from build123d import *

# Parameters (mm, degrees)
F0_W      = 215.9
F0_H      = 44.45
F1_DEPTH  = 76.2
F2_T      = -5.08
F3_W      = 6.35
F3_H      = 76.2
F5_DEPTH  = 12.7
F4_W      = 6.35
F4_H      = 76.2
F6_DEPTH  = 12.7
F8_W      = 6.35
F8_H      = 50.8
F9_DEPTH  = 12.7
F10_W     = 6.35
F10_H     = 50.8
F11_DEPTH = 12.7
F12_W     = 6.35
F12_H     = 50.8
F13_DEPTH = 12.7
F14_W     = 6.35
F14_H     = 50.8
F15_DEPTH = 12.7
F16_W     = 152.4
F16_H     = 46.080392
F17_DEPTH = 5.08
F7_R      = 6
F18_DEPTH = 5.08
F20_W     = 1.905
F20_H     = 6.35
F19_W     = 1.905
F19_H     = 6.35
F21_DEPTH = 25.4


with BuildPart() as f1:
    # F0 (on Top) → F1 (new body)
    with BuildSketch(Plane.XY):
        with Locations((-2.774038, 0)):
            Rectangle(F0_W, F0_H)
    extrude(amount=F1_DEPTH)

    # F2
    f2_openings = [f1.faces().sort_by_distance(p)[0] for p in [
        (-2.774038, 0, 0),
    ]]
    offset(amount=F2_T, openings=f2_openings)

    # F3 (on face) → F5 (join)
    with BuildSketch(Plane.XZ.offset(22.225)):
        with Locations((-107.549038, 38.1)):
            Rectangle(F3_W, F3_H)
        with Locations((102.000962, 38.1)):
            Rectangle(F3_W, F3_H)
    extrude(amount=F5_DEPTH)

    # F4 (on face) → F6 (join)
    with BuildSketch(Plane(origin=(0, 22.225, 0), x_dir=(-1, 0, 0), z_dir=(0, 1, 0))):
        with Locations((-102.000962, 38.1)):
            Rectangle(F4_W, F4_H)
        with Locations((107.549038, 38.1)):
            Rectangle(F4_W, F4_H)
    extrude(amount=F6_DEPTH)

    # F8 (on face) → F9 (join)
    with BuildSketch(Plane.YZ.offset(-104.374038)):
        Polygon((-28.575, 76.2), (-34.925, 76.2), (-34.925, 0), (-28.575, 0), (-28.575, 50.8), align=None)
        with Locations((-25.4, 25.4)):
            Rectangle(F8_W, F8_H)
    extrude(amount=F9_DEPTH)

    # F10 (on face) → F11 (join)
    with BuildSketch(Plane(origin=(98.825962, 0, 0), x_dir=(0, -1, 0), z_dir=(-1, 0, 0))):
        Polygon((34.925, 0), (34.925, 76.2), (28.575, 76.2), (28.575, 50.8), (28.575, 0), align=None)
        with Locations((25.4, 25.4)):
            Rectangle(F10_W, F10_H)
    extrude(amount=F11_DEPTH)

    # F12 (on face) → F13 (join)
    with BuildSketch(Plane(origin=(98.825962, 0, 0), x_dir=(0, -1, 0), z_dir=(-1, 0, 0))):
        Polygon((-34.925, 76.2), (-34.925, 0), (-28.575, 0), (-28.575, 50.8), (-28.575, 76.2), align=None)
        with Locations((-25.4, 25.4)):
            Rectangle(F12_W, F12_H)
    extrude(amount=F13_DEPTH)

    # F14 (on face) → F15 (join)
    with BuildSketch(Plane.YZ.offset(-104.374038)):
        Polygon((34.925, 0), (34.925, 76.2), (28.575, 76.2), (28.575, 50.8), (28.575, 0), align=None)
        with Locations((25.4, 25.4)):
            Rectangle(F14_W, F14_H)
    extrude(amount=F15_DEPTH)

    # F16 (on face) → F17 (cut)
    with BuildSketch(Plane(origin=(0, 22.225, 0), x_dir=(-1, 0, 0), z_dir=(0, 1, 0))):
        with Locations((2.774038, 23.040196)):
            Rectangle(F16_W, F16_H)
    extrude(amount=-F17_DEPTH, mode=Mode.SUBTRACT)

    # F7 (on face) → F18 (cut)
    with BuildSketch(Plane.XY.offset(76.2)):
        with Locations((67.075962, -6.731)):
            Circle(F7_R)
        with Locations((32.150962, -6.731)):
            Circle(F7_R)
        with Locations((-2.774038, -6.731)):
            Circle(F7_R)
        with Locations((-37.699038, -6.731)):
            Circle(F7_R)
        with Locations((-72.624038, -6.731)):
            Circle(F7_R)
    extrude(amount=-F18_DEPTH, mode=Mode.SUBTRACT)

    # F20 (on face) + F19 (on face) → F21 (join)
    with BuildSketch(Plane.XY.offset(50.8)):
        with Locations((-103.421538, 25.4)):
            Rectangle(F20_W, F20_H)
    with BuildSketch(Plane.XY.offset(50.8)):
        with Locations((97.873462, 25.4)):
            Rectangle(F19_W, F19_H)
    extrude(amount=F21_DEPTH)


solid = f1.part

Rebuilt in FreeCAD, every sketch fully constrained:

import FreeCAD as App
import Part
import Sketcher

V = App.Vector
Q = App.Units.Quantity


def faces_at(feature, points):
    """Names of the faces that lie closest to the given points."""
    faces = feature.Shape.Faces
    near = lambda p: min(range(len(faces)), key=lambda i: faces[i].distToShape(Part.Vertex(*p))[0])
    return sorted({f"Face{near(p) + 1}" for p in points})


def add_polygon(sketch, points):
    """Adds a closed chain of lines whose ends are joined by coincident constraints."""
    first, n = sketch.GeometryCount, len(points)
    for a, b in zip(points, points[1:] + points[:1]):
        sketch.addGeometry(Part.LineSegment(App.Vector(*a, 0), App.Vector(*b, 0)), False)
    for i in range(n):
        sketch.addConstraint(Sketcher.Constraint("Coincident", first + i, 2, first + (i + 1) % n, 1))

doc = App.newDocument("Part")
body = doc.addObject("PartDesign::Body", "Body")

# Sketch on XY plane
sketch1 = body.newObject("Sketcher::SketchObject", "Sketch")
sketch1.AttachmentSupport = (doc.getObject("XY_Plane"), [""])
sketch1.MapMode = "FlatFace"
add_polygon(sketch1, [(-111, 22), (-111, -22), (105, -22), (105, 22)])  # lines 0-3
sketch1.addConstraint(Sketcher.Constraint("Vertical", 0))
sketch1.addConstraint(Sketcher.Constraint("Horizontal", 1))
sketch1.addConstraint(Sketcher.Constraint("Vertical", 2))
sketch1.addConstraint(Sketcher.Constraint("Horizontal", 3))
sketch1.addConstraint(Sketcher.Constraint("DistanceX", 1, 1, 1, 2, Q("8.5 in")))
sketch1.addConstraint(Sketcher.Constraint("DistanceY", 0, 2, 0, 1, Q("1.75 in")))
sketch1.addConstraint(Sketcher.Constraint("DistanceY", 0, 2, -1, 1, Q("0.875 in")))
sketch1.addConstraint(Sketcher.Constraint("DistanceX", -1, 1, 1, 2, Q("105.175962 mm")))
pad1 = body.newObject("PartDesign::Pad", "Pad")
pad1.Profile = sketch1
pad1.Length = Q("3 in")
doc.recompute()

thickness = body.newObject("PartDesign::Thickness", "Thickness")
thickness.Base = (pad1, faces_at(pad1, [(-2.774, 0, 0)]))
thickness.Value = Q("0.2 in")
thickness.Reversed = True
thickness.Join = "Arc"

# Sketch on XZ plane
sketch2 = body.newObject("Sketcher::SketchObject", "Sketch001")
sketch2.AttachmentSupport = (doc.getObject("XZ_Plane"), [""])
sketch2.MapMode = "FlatFace"
sketch2.AttachmentOffset = App.Placement(V(0, 0, 0.875 * 25.4), App.Rotation())
add_polygon(sketch2, [(-111, 76), (-111, 0), (-104, 0), (-104, 76)])  # lines 0-3
add_polygon(sketch2, [(99, 76), (99, 0), (105, 0), (105, 76)])  # lines 4-7
sketch2.addConstraint(Sketcher.Constraint("Vertical", 0))
sketch2.addConstraint(Sketcher.Constraint("Horizontal", 1))
sketch2.addConstraint(Sketcher.Constraint("Vertical", 2))
sketch2.addConstraint(Sketcher.Constraint("Horizontal", 3))
sketch2.addConstraint(Sketcher.Constraint("Vertical", 4))
sketch2.addConstraint(Sketcher.Constraint("Horizontal", 5))
sketch2.addConstraint(Sketcher.Constraint("Vertical", 6))
sketch2.addConstraint(Sketcher.Constraint("Horizontal", 7))
sketch2.addConstraint(Sketcher.Constraint("PointOnObject", 0, 2, -1))
sketch2.addConstraint(Sketcher.Constraint("PointOnObject", 4, 2, -1))
sketch2.addConstraint(Sketcher.Constraint("Horizontal", 3, 2, 6, 2))
sketch2.addConstraint(Sketcher.Constraint("Equal", 3, 5))
sketch2.addConstraint(Sketcher.Constraint("DistanceY", 0, 2, 0, 1, Q("3 in")))
sketch2.addConstraint(Sketcher.Constraint("DistanceX", 1, 2, 4, 2, Q("8 in")))
sketch2.addConstraint(Sketcher.Constraint("DistanceX", 1, 1, 1, 2, Q("0.25 in")))
sketch2.addConstraint(Sketcher.Constraint("DistanceX", 1, 2, -1, 1, Q("104.374038 mm")))
pad2 = body.newObject("PartDesign::Pad", "Pad001")
pad2.Profile = sketch2
pad2.Length = Q("0.5 in")

# Sketch on XZ plane
sketch3 = body.newObject("Sketcher::SketchObject", "Sketch002")
sketch3.AttachmentSupport = (doc.getObject("XZ_Plane"), [""])
sketch3.MapMode = "FlatFace"
sketch3.AttachmentOffset = App.Placement(V(0, 0, -0.875 * 25.4), App.Rotation())
add_polygon(sketch3, [(105, 76), (105, 0), (99, 0), (99, 76)])  # lines 0-3
add_polygon(sketch3, [(-104, 76), (-104, 0), (-111, 0), (-111, 76)])  # lines 4-7
sketch3.addConstraint(Sketcher.Constraint("Vertical", 0))
sketch3.addConstraint(Sketcher.Constraint("Horizontal", 1))
sketch3.addConstraint(Sketcher.Constraint("Vertical", 2))
sketch3.addConstraint(Sketcher.Constraint("Horizontal", 3))
sketch3.addConstraint(Sketcher.Constraint("Vertical", 4))
sketch3.addConstraint(Sketcher.Constraint("Horizontal", 5))
sketch3.addConstraint(Sketcher.Constraint("Vertical", 6))
sketch3.addConstraint(Sketcher.Constraint("Horizontal", 7))
sketch3.addConstraint(Sketcher.Constraint("PointOnObject", 0, 2, -1))
sketch3.addConstraint(Sketcher.Constraint("PointOnObject", 4, 2, -1))
sketch3.addConstraint(Sketcher.Constraint("Horizontal", 3, 2, 6, 2))
sketch3.addConstraint(Sketcher.Constraint("Equal", 3, 5))
sketch3.addConstraint(Sketcher.Constraint("DistanceY", 0, 2, 0, 1, Q("3 in")))
sketch3.addConstraint(Sketcher.Constraint("DistanceX", 4, 2, 1, 2, Q("8 in")))
sketch3.addConstraint(Sketcher.Constraint("DistanceX", 1, 2, 1, 1, Q("0.25 in")))
sketch3.addConstraint(Sketcher.Constraint("DistanceX", -1, 1, 0, 2, Q("105.175962 mm")))
pad3 = body.newObject("PartDesign::Pad", "Pad002")
pad3.Profile = sketch3
pad3.Length = Q("0.5 in")
pad3.Reversed = True

# Sketch on YZ plane
sketch4 = body.newObject("Sketcher::SketchObject", "Sketch003")
sketch4.AttachmentSupport = (doc.getObject("YZ_Plane"), [""])
sketch4.MapMode = "FlatFace"
sketch4.AttachmentOffset = App.Placement(V(0, 0, -104.374038), App.Rotation())
add_polygon(sketch4, [(-29, 76), (-35, 76), (-35, 0), (-22, 0), (-22, 51), (-29, 51)])  # lines 0-5
sketch4.addConstraint(Sketcher.Constraint("Horizontal", 0))
sketch4.addConstraint(Sketcher.Constraint("Vertical", 1))
sketch4.addConstraint(Sketcher.Constraint("Horizontal", 2))
sketch4.addConstraint(Sketcher.Constraint("Vertical", 3))
sketch4.addConstraint(Sketcher.Constraint("Horizontal", 4))
sketch4.addConstraint(Sketcher.Constraint("Vertical", 5))
sketch4.addConstraint(Sketcher.Constraint("PointOnObject", 1, 2, -1))
sketch4.addConstraint(Sketcher.Constraint("Equal", 0, 4))
sketch4.addConstraint(Sketcher.Constraint("DistanceY", 1, 2, 1, 1, Q("3 in")))
sketch4.addConstraint(Sketcher.Constraint("DistanceY", 3, 1, 3, 2, Q("2 in")))
sketch4.addConstraint(Sketcher.Constraint("DistanceX", 2, 1, 2, 2, Q("0.5 in")))
sketch4.addConstraint(Sketcher.Constraint("DistanceX", 0, 2, -1, 1, Q("1.375 in")))
pad4 = body.newObject("PartDesign::Pad", "Pad003")
pad4.Profile = sketch4
pad4.Length = Q("0.5 in")

# Sketch on YZ plane
sketch5 = body.newObject("Sketcher::SketchObject", "Sketch004")
sketch5.AttachmentSupport = (doc.getObject("YZ_Plane"), [""])
sketch5.MapMode = "FlatFace"
sketch5.AttachmentOffset = App.Placement(V(0, 0, 98.825962), App.Rotation())
add_polygon(sketch5, [(-35, 0), (-35, 76), (-29, 76), (-29, 51), (-22, 51), (-22, 0)])  # lines 0-5
sketch5.addConstraint(Sketcher.Constraint("Vertical", 0))
sketch5.addConstraint(Sketcher.Constraint("Horizontal", 1))
sketch5.addConstraint(Sketcher.Constraint("Vertical", 2))
sketch5.addConstraint(Sketcher.Constraint("Horizontal", 3))
sketch5.addConstraint(Sketcher.Constraint("Vertical", 4))
sketch5.addConstraint(Sketcher.Constraint("Horizontal", 5))
sketch5.addConstraint(Sketcher.Constraint("PointOnObject", 4, 2, -1))
sketch5.addConstraint(Sketcher.Constraint("Equal", 1, 3))
sketch5.addConstraint(Sketcher.Constraint("DistanceY", 0, 1, 0, 2, Q("3 in")))
sketch5.addConstraint(Sketcher.Constraint("DistanceY", 2, 2, 2, 1, Q("1 in")))
sketch5.addConstraint(Sketcher.Constraint("DistanceX", 5, 2, 5, 1, Q("0.5 in")))
sketch5.addConstraint(Sketcher.Constraint("DistanceX", 0, 2, -1, 1, Q("1.375 in")))
pad5 = body.newObject("PartDesign::Pad", "Pad004")
pad5.Profile = sketch5
pad5.Length = Q("0.5 in")
pad5.Reversed = True

# Sketch on YZ plane
sketch6 = body.newObject("Sketcher::SketchObject", "Sketch005")
sketch6.AttachmentSupport = (doc.getObject("YZ_Plane"), [""])
sketch6.MapMode = "FlatFace"
sketch6.AttachmentOffset = App.Placement(V(0, 0, 98.825962), App.Rotation())
add_polygon(sketch6, [(35, 76), (35, 0), (22, 0), (22, 51), (29, 51), (29, 76)])  # lines 0-5
sketch6.addConstraint(Sketcher.Constraint("Vertical", 0))
sketch6.addConstraint(Sketcher.Constraint("Horizontal", 1))
sketch6.addConstraint(Sketcher.Constraint("Vertical", 2))
sketch6.addConstraint(Sketcher.Constraint("Horizontal", 3))
sketch6.addConstraint(Sketcher.Constraint("Vertical", 4))
sketch6.addConstraint(Sketcher.Constraint("Horizontal", 5))
sketch6.addConstraint(Sketcher.Constraint("PointOnObject", 0, 2, -1))
sketch6.addConstraint(Sketcher.Constraint("Equal", 3, 5))
sketch6.addConstraint(Sketcher.Constraint("DistanceY", 0, 2, 0, 1, Q("3 in")))
sketch6.addConstraint(Sketcher.Constraint("DistanceY", 2, 1, 2, 2, Q("2 in")))
sketch6.addConstraint(Sketcher.Constraint("DistanceX", 1, 2, 1, 1, Q("0.5 in")))
sketch6.addConstraint(Sketcher.Constraint("DistanceX", -1, 1, 0, 2, Q("1.375 in")))
pad6 = body.newObject("PartDesign::Pad", "Pad005")
pad6.Profile = sketch6
pad6.Length = Q("0.5 in")
pad6.Reversed = True

# Sketch on YZ plane
sketch7 = body.newObject("Sketcher::SketchObject", "Sketch006")
sketch7.AttachmentSupport = (doc.getObject("YZ_Plane"), [""])
sketch7.MapMode = "FlatFace"
sketch7.AttachmentOffset = App.Placement(V(0, 0, -104.374038), App.Rotation())
add_polygon(sketch7, [(35, 0), (35, 76), (29, 76), (29, 51), (22, 51), (22, 0)])  # lines 0-5
sketch7.addConstraint(Sketcher.Constraint("Vertical", 0))
sketch7.addConstraint(Sketcher.Constraint("Horizontal", 1))
sketch7.addConstraint(Sketcher.Constraint("Vertical", 2))
sketch7.addConstraint(Sketcher.Constraint("Horizontal", 3))
sketch7.addConstraint(Sketcher.Constraint("Vertical", 4))
sketch7.addConstraint(Sketcher.Constraint("Horizontal", 5))
sketch7.addConstraint(Sketcher.Constraint("PointOnObject", 4, 2, -1))
sketch7.addConstraint(Sketcher.Constraint("Equal", 1, 3))
sketch7.addConstraint(Sketcher.Constraint("DistanceY", 0, 1, 0, 2, Q("3 in")))
sketch7.addConstraint(Sketcher.Constraint("DistanceY", 2, 2, 2, 1, Q("1 in")))
sketch7.addConstraint(Sketcher.Constraint("DistanceX", 5, 1, 5, 2, Q("0.5 in")))
sketch7.addConstraint(Sketcher.Constraint("DistanceX", -1, 1, 0, 2, Q("1.375 in")))
pad7 = body.newObject("PartDesign::Pad", "Pad006")
pad7.Profile = sketch7
pad7.Length = Q("0.5 in")

# Sketch on XZ plane
sketch8 = body.newObject("Sketcher::SketchObject", "Sketch007")
sketch8.AttachmentSupport = (doc.getObject("XZ_Plane"), [""])
sketch8.MapMode = "FlatFace"
sketch8.AttachmentOffset = App.Placement(V(0, 0, -0.875 * 25.4), App.Rotation())
add_polygon(sketch8, [(73, 46), (73, 0), (-79, 0), (-79, 46)])  # lines 0-3
sketch8.addConstraint(Sketcher.Constraint("Vertical", 0))
sketch8.addConstraint(Sketcher.Constraint("Horizontal", 1))
sketch8.addConstraint(Sketcher.Constraint("Vertical", 2))
sketch8.addConstraint(Sketcher.Constraint("Horizontal", 3))
sketch8.addConstraint(Sketcher.Constraint("PointOnObject", 0, 2, -1))
sketch8.addConstraint(Sketcher.Constraint("DistanceX", 1, 2, 1, 1, Q("6 in")))
sketch8.addConstraint(Sketcher.Constraint("DistanceY", 0, 2, 0, 1, Q("46.080392 mm")))
sketch8.addConstraint(Sketcher.Constraint("DistanceX", -1, 1, 0, 2, Q("73.425962 mm")))
pocket1 = body.newObject("PartDesign::Pocket", "Pocket")
pocket1.Profile = sketch8
pocket1.Length = Q("0.2 in")
pocket1.Reversed = True

# Sketch on XY plane
sketch9 = body.newObject("Sketcher::SketchObject", "Sketch008")
sketch9.AttachmentSupport = (doc.getObject("XY_Plane"), [""])
sketch9.MapMode = "FlatFace"
sketch9.AttachmentOffset = App.Placement(V(0, 0, 3 * 25.4), App.Rotation())
sketch9.addGeometry(Part.Circle(V(67, -7, 0), V(0, 0, 1), 6), False)
sketch9.addGeometry(Part.Circle(V(32, -7, 0), V(0, 0, 1), 6), False)
sketch9.addGeometry(Part.Circle(V(-3, -7, 0), V(0, 0, 1), 6), False)
sketch9.addGeometry(Part.Circle(V(-38, -7, 0), V(0, 0, 1), 6), False)
sketch9.addGeometry(Part.Circle(V(-73, -7, 0), V(0, 0, 1), 6), False)
sketch9.addConstraint(Sketcher.Constraint("Equal", 0, 1))
sketch9.addConstraint(Sketcher.Constraint("Equal", 1, 2))
sketch9.addConstraint(Sketcher.Constraint("Equal", 2, 3))
sketch9.addConstraint(Sketcher.Constraint("Equal", 3, 4))
sketch9.addConstraint(Sketcher.Constraint("Horizontal", 0, 3, 1, 3))
sketch9.addConstraint(Sketcher.Constraint("Horizontal", 1, 3, 2, 3))
sketch9.addConstraint(Sketcher.Constraint("Horizontal", 2, 3, 3, 3))
sketch9.addConstraint(Sketcher.Constraint("Horizontal", 3, 3, 4, 3))
sketch9.addConstraint(Sketcher.Constraint("DistanceX", 4, 3, 0, 3, Q("5.5 in")))
sketch9.addConstraint(Sketcher.Constraint("Diameter", 0, Q("12 mm")))
sketch9.addConstraint(Sketcher.Constraint("DistanceX", 2, 3, 0, 3, Q("2.75 in")))
sketch9.addConstraint(Sketcher.Constraint("DistanceX", 3, 3, 1, 3, Q("2.75 in")))
sketch9.addConstraint(Sketcher.Constraint("DistanceY", 0, 3, -1, 1, Q("0.265 in")))
sketch9.addConstraint(Sketcher.Constraint("DistanceX", 1, 3, 0, 3, Q("1.375 in")))
sketch9.addConstraint(Sketcher.Constraint("DistanceX", 2, 3, -1, 1, Q("2.774038 mm")))
pocket2 = body.newObject("PartDesign::Pocket", "Pocket001")
pocket2.Profile = sketch9
pocket2.Length = Q("0.2 in")

# Sketch on XY plane
sketch10 = body.newObject("Sketcher::SketchObject", "Sketch009")
sketch10.AttachmentSupport = (doc.getObject("XY_Plane"), [""])
sketch10.MapMode = "FlatFace"
sketch10.AttachmentOffset = App.Placement(V(0, 0, 2 * 25.4), App.Rotation())
add_polygon(sketch10, [(-104.4, 28.6), (-104.4, 22.2), (-102.5, 22.2), (-102.5, 28.6)])  # lines 0-3
add_polygon(sketch10, [(96.9, 28.6), (96.9, 22.2), (98.8, 22.2), (98.8, 28.6)])  # lines 4-7
sketch10.addConstraint(Sketcher.Constraint("Vertical", 0))
sketch10.addConstraint(Sketcher.Constraint("Horizontal", 1))
sketch10.addConstraint(Sketcher.Constraint("Vertical", 2))
sketch10.addConstraint(Sketcher.Constraint("Horizontal", 3))
sketch10.addConstraint(Sketcher.Constraint("Vertical", 4))
sketch10.addConstraint(Sketcher.Constraint("Horizontal", 5))
sketch10.addConstraint(Sketcher.Constraint("Vertical", 6))
sketch10.addConstraint(Sketcher.Constraint("Horizontal", 7))
sketch10.addConstraint(Sketcher.Constraint("Horizontal", 1, 2, 4, 2))
sketch10.addConstraint(Sketcher.Constraint("Horizontal", 3, 2, 6, 2))
sketch10.addConstraint(Sketcher.Constraint("Equal", 3, 5))
sketch10.addConstraint(Sketcher.Constraint("DistanceX", 0, 2, 5, 2, Q("8 in")))
sketch10.addConstraint(Sketcher.Constraint("DistanceY", 0, 2, 0, 1, Q("0.25 in")))
sketch10.addConstraint(Sketcher.Constraint("DistanceX", 1, 1, 1, 2, Q("0.075 in")))
sketch10.addConstraint(Sketcher.Constraint("DistanceY", -1, 1, 0, 2, Q("0.875 in")))
sketch10.addConstraint(Sketcher.Constraint("DistanceX", 0, 2, -1, 1, Q("104.374038 mm")))
pad8 = body.newObject("PartDesign::Pad", "Pad007")
pad8.Profile = sketch10
pad8.Length = Q("1 in")

doc.recompute()
